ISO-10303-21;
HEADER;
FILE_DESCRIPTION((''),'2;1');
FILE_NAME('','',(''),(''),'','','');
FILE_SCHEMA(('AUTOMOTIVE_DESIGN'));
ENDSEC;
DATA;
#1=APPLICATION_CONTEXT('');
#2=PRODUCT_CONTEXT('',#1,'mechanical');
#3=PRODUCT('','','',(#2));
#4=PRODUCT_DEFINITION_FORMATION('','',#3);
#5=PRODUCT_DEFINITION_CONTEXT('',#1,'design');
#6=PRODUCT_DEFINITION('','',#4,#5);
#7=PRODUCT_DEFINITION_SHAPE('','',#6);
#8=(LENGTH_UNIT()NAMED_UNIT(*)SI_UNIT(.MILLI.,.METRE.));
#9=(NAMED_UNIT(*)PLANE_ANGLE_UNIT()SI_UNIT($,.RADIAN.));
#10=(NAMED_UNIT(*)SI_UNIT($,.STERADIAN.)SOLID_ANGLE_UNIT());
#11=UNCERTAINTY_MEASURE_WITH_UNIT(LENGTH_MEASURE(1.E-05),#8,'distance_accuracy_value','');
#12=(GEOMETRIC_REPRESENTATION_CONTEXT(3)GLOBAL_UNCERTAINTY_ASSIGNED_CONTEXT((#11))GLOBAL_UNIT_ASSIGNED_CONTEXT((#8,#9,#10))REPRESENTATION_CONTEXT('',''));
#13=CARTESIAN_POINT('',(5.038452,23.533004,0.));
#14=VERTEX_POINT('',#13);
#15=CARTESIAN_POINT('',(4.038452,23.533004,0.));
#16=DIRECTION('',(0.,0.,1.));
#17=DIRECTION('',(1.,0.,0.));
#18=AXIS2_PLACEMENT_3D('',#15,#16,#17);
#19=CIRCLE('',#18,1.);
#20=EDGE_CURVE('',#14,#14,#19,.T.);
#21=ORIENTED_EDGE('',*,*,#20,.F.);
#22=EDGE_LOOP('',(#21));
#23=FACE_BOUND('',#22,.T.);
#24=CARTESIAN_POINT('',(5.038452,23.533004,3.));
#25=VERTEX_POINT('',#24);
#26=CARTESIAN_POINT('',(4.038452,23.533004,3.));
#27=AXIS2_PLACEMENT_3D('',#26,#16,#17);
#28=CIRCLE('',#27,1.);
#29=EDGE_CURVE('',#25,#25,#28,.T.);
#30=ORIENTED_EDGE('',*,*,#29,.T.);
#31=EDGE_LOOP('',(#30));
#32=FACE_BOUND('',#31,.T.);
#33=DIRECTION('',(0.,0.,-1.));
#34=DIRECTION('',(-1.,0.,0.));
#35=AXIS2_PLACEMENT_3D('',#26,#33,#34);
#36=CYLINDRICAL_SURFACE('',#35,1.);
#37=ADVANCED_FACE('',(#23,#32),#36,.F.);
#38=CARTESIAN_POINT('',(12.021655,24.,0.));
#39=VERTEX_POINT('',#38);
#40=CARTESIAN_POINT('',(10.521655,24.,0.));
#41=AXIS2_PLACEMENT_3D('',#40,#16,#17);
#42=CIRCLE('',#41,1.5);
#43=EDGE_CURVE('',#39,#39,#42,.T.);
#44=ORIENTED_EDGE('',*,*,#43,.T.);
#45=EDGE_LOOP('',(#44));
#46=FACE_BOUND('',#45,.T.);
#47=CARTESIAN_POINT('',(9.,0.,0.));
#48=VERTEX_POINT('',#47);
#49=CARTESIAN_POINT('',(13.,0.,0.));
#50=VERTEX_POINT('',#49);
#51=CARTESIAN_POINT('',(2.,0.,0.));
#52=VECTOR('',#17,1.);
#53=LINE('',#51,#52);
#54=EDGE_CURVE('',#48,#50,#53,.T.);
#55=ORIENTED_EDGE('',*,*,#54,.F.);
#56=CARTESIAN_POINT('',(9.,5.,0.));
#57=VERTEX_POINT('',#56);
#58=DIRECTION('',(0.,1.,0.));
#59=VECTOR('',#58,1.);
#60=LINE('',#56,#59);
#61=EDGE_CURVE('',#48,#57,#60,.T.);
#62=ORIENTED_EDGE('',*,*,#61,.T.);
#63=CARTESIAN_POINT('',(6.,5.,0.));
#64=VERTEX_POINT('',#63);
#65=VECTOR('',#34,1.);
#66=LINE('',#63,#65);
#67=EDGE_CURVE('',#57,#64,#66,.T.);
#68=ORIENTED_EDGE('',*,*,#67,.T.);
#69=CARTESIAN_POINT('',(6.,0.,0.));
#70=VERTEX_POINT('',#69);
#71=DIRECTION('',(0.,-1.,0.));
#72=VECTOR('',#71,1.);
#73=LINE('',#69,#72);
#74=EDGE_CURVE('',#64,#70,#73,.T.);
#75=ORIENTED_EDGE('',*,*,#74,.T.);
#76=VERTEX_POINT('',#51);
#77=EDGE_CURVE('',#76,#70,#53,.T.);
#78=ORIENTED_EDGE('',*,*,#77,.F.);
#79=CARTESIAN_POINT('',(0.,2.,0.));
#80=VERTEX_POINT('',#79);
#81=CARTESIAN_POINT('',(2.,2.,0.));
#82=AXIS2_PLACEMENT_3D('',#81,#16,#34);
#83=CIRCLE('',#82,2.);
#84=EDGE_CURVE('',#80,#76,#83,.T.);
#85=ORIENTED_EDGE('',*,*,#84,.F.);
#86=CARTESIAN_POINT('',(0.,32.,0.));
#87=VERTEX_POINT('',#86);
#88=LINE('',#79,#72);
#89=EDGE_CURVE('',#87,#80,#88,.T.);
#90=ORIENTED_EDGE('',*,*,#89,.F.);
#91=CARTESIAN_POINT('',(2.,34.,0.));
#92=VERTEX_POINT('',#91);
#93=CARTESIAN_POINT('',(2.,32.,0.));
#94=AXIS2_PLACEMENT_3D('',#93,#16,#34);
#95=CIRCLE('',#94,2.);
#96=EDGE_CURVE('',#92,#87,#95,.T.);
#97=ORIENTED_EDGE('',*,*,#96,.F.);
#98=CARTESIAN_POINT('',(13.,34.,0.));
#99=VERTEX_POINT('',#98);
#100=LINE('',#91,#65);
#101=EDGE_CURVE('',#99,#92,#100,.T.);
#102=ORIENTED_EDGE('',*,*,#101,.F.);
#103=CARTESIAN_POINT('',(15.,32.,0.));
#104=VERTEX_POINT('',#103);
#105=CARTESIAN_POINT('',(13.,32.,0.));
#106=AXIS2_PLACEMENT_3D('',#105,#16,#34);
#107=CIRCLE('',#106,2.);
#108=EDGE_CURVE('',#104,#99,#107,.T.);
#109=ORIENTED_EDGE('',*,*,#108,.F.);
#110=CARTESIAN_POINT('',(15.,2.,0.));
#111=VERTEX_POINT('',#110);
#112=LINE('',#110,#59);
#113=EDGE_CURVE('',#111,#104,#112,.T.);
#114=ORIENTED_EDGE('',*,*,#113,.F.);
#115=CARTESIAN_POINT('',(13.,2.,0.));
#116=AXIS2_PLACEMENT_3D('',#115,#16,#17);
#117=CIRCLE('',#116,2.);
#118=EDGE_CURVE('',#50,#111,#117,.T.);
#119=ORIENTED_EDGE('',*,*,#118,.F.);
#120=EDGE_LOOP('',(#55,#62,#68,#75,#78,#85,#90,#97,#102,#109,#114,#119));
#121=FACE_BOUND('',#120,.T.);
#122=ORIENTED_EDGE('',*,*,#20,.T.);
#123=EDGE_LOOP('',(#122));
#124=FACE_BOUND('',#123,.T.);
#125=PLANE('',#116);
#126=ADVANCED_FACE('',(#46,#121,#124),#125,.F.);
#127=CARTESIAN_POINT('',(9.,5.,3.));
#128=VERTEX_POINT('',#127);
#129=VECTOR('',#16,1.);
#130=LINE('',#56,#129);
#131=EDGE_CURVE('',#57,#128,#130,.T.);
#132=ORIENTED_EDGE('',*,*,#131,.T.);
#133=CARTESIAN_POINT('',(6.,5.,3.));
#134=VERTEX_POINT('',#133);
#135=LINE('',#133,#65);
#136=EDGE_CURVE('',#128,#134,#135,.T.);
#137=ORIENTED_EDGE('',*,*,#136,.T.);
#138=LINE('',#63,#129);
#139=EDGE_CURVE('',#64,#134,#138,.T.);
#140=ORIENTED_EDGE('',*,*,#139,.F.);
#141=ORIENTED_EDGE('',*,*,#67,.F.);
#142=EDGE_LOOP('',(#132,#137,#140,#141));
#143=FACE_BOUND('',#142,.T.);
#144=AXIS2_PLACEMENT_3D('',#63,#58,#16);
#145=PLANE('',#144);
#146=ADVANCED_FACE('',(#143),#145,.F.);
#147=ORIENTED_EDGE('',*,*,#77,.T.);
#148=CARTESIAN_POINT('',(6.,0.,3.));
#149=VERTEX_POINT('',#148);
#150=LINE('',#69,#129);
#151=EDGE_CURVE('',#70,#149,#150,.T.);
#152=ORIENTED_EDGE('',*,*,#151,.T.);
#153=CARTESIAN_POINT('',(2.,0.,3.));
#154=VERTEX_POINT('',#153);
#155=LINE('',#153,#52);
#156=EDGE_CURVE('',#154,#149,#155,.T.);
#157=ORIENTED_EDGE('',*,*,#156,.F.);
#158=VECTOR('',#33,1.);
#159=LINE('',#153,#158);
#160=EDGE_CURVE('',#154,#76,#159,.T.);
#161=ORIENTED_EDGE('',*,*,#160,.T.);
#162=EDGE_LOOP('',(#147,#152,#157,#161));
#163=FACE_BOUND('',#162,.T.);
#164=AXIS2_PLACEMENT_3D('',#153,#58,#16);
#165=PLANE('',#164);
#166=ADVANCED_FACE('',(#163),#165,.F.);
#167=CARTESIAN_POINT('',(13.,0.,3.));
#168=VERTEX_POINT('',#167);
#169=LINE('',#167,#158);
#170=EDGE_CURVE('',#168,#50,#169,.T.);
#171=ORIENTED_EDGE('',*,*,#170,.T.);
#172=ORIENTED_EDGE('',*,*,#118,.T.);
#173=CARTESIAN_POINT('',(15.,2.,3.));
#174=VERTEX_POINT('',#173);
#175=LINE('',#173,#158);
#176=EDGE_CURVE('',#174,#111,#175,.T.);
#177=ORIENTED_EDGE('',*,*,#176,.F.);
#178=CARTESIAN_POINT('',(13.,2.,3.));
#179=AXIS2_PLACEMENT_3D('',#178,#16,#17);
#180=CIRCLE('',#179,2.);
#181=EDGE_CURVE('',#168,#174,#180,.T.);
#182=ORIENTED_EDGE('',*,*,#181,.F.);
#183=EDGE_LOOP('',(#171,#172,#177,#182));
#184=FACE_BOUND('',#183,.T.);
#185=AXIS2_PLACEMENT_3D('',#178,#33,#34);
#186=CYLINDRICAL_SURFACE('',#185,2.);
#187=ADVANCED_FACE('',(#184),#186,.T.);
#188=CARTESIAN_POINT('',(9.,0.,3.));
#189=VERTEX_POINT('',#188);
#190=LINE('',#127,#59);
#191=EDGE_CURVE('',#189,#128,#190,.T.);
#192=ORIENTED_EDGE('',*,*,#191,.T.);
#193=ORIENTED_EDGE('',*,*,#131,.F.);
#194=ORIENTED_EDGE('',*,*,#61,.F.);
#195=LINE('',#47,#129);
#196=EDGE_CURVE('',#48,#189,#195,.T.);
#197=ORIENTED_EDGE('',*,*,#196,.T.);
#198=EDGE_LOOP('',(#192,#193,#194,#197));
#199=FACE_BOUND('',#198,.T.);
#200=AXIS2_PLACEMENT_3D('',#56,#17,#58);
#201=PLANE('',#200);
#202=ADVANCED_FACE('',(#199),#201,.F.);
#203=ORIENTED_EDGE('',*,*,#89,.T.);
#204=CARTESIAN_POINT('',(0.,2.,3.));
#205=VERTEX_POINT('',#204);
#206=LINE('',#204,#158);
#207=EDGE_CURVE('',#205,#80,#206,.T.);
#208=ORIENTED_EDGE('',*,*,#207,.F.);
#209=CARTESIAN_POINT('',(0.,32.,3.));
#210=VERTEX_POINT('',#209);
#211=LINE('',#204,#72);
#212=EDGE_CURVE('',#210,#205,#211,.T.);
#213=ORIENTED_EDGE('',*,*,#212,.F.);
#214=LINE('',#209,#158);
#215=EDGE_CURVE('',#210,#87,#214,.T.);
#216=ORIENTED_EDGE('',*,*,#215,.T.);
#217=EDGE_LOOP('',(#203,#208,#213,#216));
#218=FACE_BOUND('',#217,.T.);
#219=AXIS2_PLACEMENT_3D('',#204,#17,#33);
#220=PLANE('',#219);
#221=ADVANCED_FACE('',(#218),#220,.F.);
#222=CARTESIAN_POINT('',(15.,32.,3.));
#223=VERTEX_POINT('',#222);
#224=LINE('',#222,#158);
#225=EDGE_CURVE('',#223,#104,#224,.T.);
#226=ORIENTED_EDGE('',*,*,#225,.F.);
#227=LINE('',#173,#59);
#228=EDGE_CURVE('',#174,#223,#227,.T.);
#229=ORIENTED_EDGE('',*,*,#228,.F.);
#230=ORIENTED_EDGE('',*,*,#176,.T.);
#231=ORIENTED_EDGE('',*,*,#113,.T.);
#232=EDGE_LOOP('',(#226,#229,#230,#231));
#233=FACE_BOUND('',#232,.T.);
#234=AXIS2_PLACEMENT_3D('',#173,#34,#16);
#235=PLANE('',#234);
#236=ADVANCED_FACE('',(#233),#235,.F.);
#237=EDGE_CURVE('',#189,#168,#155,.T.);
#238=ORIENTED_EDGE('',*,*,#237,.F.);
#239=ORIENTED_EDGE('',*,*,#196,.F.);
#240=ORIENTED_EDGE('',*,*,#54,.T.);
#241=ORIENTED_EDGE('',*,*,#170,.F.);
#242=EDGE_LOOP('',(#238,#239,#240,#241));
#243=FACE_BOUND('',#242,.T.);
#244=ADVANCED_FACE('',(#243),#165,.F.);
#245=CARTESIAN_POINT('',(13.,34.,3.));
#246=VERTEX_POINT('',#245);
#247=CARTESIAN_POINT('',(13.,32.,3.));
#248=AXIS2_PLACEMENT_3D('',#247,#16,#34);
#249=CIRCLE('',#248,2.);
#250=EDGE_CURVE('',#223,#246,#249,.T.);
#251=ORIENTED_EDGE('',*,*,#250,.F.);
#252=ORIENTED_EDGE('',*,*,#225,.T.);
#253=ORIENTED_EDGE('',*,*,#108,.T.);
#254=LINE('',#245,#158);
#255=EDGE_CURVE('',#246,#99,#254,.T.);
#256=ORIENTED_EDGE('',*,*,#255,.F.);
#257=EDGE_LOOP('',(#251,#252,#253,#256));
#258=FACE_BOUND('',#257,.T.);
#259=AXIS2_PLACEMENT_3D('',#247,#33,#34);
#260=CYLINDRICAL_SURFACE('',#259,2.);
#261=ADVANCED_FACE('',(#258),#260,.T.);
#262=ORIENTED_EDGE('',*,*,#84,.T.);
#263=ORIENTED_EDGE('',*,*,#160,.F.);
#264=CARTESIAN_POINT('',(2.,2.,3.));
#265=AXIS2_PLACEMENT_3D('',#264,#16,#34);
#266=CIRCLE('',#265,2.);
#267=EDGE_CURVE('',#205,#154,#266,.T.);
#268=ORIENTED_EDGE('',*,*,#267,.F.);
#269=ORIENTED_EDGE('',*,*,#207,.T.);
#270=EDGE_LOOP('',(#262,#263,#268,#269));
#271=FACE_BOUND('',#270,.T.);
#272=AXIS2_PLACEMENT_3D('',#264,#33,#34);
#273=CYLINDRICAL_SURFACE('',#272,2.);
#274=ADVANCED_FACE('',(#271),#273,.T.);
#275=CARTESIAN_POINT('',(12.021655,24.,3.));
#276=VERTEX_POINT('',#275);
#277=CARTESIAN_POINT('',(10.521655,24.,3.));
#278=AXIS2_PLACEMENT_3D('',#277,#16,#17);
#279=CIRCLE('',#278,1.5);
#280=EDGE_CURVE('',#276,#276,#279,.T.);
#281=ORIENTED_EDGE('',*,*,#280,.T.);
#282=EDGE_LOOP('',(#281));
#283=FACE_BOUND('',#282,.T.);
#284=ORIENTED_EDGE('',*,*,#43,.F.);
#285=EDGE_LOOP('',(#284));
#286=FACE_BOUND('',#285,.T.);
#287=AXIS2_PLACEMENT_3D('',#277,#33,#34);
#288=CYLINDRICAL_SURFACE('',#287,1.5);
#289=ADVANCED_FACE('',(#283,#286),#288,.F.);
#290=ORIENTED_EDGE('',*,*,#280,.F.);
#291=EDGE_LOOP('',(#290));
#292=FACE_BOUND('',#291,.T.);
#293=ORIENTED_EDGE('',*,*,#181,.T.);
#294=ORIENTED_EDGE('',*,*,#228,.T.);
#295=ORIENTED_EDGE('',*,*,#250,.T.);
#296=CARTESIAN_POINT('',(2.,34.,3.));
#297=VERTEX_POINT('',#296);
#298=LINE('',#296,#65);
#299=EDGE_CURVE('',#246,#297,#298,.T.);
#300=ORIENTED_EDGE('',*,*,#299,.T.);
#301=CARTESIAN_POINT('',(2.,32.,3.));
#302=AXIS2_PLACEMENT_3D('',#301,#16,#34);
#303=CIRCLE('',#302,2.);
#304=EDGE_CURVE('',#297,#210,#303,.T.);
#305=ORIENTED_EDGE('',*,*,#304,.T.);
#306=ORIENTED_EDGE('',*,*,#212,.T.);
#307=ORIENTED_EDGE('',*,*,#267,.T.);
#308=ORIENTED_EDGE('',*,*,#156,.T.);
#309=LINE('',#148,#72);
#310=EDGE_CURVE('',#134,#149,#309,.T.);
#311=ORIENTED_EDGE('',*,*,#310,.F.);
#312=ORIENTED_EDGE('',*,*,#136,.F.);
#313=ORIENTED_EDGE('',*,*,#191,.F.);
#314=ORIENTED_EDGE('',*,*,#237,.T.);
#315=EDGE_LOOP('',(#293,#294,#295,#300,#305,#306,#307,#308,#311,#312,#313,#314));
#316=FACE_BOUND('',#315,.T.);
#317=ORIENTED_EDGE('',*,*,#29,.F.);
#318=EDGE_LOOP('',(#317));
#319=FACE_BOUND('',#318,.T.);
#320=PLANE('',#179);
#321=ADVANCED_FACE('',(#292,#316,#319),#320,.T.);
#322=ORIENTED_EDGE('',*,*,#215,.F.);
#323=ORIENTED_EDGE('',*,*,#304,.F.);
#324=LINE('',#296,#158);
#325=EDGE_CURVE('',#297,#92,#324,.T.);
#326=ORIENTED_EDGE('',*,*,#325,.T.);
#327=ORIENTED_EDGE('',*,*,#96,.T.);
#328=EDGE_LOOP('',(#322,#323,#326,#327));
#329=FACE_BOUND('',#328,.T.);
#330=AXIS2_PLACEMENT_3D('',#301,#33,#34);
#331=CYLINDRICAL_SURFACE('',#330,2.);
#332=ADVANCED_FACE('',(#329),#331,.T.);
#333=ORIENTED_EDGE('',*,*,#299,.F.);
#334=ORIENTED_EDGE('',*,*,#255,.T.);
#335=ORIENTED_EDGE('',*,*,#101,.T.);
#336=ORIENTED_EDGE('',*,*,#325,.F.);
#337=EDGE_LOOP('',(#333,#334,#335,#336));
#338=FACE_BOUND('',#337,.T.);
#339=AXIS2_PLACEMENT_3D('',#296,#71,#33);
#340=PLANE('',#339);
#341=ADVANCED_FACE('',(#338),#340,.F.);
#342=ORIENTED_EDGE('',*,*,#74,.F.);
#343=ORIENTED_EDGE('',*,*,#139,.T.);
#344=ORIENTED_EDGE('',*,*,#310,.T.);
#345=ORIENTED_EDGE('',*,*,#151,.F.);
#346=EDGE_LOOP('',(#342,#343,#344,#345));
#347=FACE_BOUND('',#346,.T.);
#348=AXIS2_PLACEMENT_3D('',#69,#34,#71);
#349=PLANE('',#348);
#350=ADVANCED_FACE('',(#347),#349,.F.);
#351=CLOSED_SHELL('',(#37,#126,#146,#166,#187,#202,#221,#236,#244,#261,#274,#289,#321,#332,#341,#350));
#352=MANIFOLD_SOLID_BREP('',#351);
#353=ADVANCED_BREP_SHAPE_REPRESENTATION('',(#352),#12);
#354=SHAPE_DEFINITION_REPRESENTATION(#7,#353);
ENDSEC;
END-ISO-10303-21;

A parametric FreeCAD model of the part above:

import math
import FreeCAD as App
import Part
import Sketcher

V = App.Vector

doc = App.newDocument("Part")
params = doc.addObject("Spreadsheet::Sheet", "Params")
for row, (alias, value) in enumerate([
    ("sketch1_diameter", "2 mm"),
    ("sketch1_diameter2", "3 mm"),
    ("sketch1_radius", "2 mm"),
    ("sketch1_width", "11 mm"),
    ("sketch1_height", "30 mm"),
    ("pad1_length", "3 mm"),
    ("sketch2_width", "3 mm"),
    ("sketch2_height", "5 mm"),
], start=1):
    params.set(f"A{row}", alias)
    params.set(f"B{row}", "=" + value)
    params.setAlias(f"B{row}", alias)

body = doc.addObject("PartDesign::Body", "Body")

# Sketch on XY plane
sketch1 = body.newObject("Sketcher::SketchObject", "Sketch")
sketch1.AttachmentSupport = (doc.getObject("XY_Plane"), [""])
sketch1.MapMode = "FlatFace"
sketch1.addGeometry([
    Part.LineSegment(V(2, 0, 0), V(13, 0, 0)),  # 0
    Part.ArcOfCircle(Part.Circle(V(13, 2, 0), V(0, 0, 1), 2), math.radians(-90), math.radians(0)),  # 1
    Part.LineSegment(V(15, 2, 0), V(15, 32, 0)),  # 2
    Part.ArcOfCircle(Part.Circle(V(13, 32, 0), V(0, 0, 1), 2), math.radians(0), math.radians(90)),  # 3
    Part.LineSegment(V(13, 34, 0), V(2, 34, 0)),  # 4
    Part.ArcOfCircle(Part.Circle(V(2, 32, 0), V(0, 0, 1), 2), math.radians(90), math.radians(180)),  # 5
    Part.LineSegment(V(0, 32, 0), V(0, 2, 0)),  # 6
    Part.ArcOfCircle(Part.Circle(V(2, 2, 0), V(0, 0, 1), 2), math.radians(-180), math.radians(-90)),  # 7
    Part.Circle(V(4, 23.5, 0), V(0, 0, 1), 1),  # 8
    Part.Circle(V(10.5, 24, 0), V(0, 0, 1), 1.5),  # 9
], False)
sketch1.addConstraint([
    Sketcher.Constraint("Tangent", 0, 2, 1, 1),
    Sketcher.Constraint("Tangent", 1, 2, 2, 1),
    Sketcher.Constraint("Tangent", 2, 2, 3, 1),
    Sketcher.Constraint("Tangent", 3, 2, 4, 1),
    Sketcher.Constraint("Tangent", 4, 2, 5, 1),
    Sketcher.Constraint("Tangent", 5, 2, 6, 1),
    Sketcher.Constraint("Tangent", 6, 2, 7, 1),
    Sketcher.Constraint("Tangent", 7, 2, 0, 1),
    Sketcher.Constraint("Horizontal", 0),
    Sketcher.Constraint("Vertical", 2),
    Sketcher.Constraint("Horizontal", 4),
    Sketcher.Constraint("Vertical", 6),
    Sketcher.Constraint("Equal", 1, 3),
    Sketcher.Constraint("Equal", 3, 5),
    Sketcher.Constraint("Equal", 5, 7),
    Sketcher.Constraint("PointOnObject", 0, 2, -1),
    Sketcher.Constraint("PointOnObject", 5, 2, -2),
    Sketcher.Constraint("Diameter", 8, 2.0),
    Sketcher.Constraint("Diameter", 9, 3.0),
    Sketcher.Constraint("Radius", 1, 2.0),
    Sketcher.Constraint("DistanceX", 0, 1, 0, 2, 11.0),
    Sketcher.Constraint("DistanceY", 2, 1, 2, 2, 30.0),
    Sketcher.Constraint("DistanceY", -1, 1, 9, 3, 24.0),
    Sketcher.Constraint("DistanceX", -1, 1, 8, 3, 4.038452),
    Sketcher.Constraint("DistanceY", -1, 1, 8, 3, 23.533004),
    Sketcher.Constraint("DistanceX", -1, 1, 9, 3, 10.521655),
])
sketch1.setExpression("Constraints[17]", "Params.sketch1_diameter")
sketch1.setExpression("Constraints[18]", "Params.sketch1_diameter2")
sketch1.setExpression("Constraints[19]", "Params.sketch1_radius")
sketch1.setExpression("Constraints[20]", "Params.sketch1_width")
sketch1.setExpression("Constraints[21]", "Params.sketch1_height")
pad1 = body.newObject("PartDesign::Pad", "Pad")
pad1.Profile = sketch1
pad1.setExpression("Length", "Params.pad1_length")

# Sketch on XY plane
sketch2 = body.newObject("Sketcher::SketchObject", "Sketch001")
sketch2.AttachmentSupport = (doc.getObject("XY_Plane"), [""])
sketch2.MapMode = "FlatFace"
sketch2.AttachmentOffset = App.Placement(V(0, 0, 3), App.Rotation())
sketch2.addGeometry([
    Part.LineSegment(V(6, 5, 0), V(6, 0, 0)),
    Part.LineSegment(V(6, 0, 0), V(9, 0, 0)),
    Part.LineSegment(V(9, 0, 0), V(9, 5, 0)),
    Part.LineSegment(V(9, 5, 0), V(6, 5, 0)),
], False)
sketch2.addConstraint([
    Sketcher.Constraint("Coincident", 0, 2, 1, 1),
    Sketcher.Constraint("Coincident", 1, 2, 2, 1),
    Sketcher.Constraint("Coincident", 2, 2, 3, 1),
    Sketcher.Constraint("Coincident", 3, 2, 0, 1),
    Sketcher.Constraint("Vertical", 0),
    Sketcher.Constraint("Horizontal", 1),
    Sketcher.Constraint("Vertical", 2),
    Sketcher.Constraint("Horizontal", 3),
    Sketcher.Constraint("PointOnObject", 0, 2, -1),
    Sketcher.Constraint("DistanceX", 1, 1, 1, 2, 3.0),
    Sketcher.Constraint("DistanceY", 0, 2, 0, 1, 5.0),
    Sketcher.Constraint("DistanceX", -1, 1, 0, 2, 6.0),
])
sketch2.setExpression("Constraints[9]", "Params.sketch2_width")
sketch2.setExpression("Constraints[10]", "Params.sketch2_height")
pocket1 = body.newObject("PartDesign::Pocket", "Pocket")
pocket1.Profile = sketch2
pocket1.Type = "ThroughAll"

doc.recompute()
